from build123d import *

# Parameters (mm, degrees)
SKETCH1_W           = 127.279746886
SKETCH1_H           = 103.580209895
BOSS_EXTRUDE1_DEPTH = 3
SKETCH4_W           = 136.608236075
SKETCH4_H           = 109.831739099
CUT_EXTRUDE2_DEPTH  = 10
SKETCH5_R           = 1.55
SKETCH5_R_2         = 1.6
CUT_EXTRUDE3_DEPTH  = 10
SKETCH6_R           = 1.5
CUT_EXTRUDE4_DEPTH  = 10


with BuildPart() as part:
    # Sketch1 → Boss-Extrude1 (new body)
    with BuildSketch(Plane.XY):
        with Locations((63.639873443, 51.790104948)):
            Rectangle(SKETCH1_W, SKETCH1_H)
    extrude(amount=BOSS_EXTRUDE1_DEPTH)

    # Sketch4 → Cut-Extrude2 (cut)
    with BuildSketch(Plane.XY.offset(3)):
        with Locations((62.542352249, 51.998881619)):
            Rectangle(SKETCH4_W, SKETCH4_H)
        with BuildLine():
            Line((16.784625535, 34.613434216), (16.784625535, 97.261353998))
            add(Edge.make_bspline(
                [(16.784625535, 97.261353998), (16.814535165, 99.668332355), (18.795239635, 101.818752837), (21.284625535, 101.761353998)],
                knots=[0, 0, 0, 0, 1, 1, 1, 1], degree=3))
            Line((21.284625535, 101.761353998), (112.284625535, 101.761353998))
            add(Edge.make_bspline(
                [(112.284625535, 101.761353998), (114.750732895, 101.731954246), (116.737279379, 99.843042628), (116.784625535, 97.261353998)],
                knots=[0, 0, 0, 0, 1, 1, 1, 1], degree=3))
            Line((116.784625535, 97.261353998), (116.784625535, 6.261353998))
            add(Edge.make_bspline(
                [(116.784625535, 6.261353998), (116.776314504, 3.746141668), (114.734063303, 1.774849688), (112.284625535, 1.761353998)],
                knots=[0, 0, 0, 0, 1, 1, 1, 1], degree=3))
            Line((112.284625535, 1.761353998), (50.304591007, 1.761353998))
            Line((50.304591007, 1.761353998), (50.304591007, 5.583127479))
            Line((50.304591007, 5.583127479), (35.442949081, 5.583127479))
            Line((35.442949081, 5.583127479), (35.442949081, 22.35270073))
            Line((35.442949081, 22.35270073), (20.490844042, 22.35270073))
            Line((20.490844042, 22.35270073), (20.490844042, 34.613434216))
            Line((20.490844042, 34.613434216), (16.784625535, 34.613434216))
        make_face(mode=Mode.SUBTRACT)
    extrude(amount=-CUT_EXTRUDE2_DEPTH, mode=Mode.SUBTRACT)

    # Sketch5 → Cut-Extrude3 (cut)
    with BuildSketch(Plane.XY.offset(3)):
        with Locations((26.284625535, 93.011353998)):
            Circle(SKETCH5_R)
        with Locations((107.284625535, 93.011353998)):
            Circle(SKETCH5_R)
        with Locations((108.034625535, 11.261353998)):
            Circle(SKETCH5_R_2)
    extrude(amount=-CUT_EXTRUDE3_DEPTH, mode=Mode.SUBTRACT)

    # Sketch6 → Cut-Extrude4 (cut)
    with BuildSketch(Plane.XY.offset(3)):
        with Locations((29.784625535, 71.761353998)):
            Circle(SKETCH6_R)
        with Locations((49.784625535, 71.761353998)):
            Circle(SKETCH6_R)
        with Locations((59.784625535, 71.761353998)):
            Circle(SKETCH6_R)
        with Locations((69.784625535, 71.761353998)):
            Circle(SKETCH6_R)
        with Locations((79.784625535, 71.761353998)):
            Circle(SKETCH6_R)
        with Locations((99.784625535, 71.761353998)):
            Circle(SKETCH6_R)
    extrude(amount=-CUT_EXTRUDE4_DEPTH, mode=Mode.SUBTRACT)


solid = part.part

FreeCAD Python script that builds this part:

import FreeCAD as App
import Part
import Sketcher

V = App.Vector
Q = App.Units.Quantity


def add_polygon(sketch, points):
    """Adds a closed chain of lines whose ends are joined by coincident constraints."""
    first, n = sketch.GeometryCount, len(points)
    for a, b in zip(points, points[1:] + points[:1]):
        sketch.addGeometry(Part.LineSegment(App.Vector(*a, 0), App.Vector(*b, 0)), False)
    for i in range(n):
        sketch.addConstraint(Sketcher.Constraint("Coincident", first + i, 2, first + (i + 1) % n, 1))

doc = App.newDocument("Part")
body = doc.addObject("PartDesign::Body", "Body")

sketch1 = body.newObject("Sketcher::SketchObject", "Sketch")
sketch1.AttachmentSupport = (doc.getObject("XY_Plane"), [""])
sketch1.MapMode = "FlatFace"
add_polygon(sketch1, [(0, 103.58021), (0, 0), (127.279747, 0), (127.279747, 103.58021)])
sketch1.addConstraint(Sketcher.Constraint("Vertical", 0))
sketch1.addConstraint(Sketcher.Constraint("Horizontal", 1))
sketch1.addConstraint(Sketcher.Constraint("Vertical", 2))
sketch1.addConstraint(Sketcher.Constraint("Horizontal", 3))
sketch1.addConstraint(Sketcher.Constraint("Coincident", 0, 2, -1, 1))
sketch1.addConstraint(Sketcher.Constraint("DistanceY", 0, 2, 0, 1, Q("103.58021 mm")))
sketch1.addConstraint(Sketcher.Constraint("DistanceX", 1, 1, 1, 2, Q("127.279747 mm")))
pad1 = body.newObject("PartDesign::Pad", "Pad")
pad1.Profile = sketch1
pad1.Length = 3

sketch2 = body.newObject("Sketcher::SketchObject", "Sketch001")
sketch2.AttachmentSupport = (doc.getObject("XY_Plane"), [""])
sketch2.MapMode = "FlatFace"
sketch2.AttachmentOffset = App.Placement(V(0, 0, 3), App.Rotation())
add_polygon(sketch2, [(-5.761766, 106.914751), (-5.761766, -2.916988), (130.84647, -2.916988), (130.84647, 106.914751)])
sketch2.addGeometry(Part.LineSegment(V(20.490844, 34.613434, 0), V(16.784626, 34.613434, 0)), False)
sketch2.addGeometry(Part.LineSegment(V(16.784626, 34.613434, 0), V(16.784626, 97.261354, 0)), False)
sketch2.addGeometry(Part.BSplineCurve([V(16.784626, 97.261354, 0), V(16.814535, 99.668332, 0), V(18.79524, 101.818753, 0), V(21.284626, 101.761354, 0)], [4, 4], [0, 1], False, 3, [1, 1, 1, 1], False), False)
sketch2.addGeometry(Part.LineSegment(V(21.284626, 101.761354, 0), V(112.284626, 101.761354, 0)), False)
sketch2.addGeometry(Part.BSplineCurve([V(112.284626, 101.761354, 0), V(114.750733, 101.731954, 0), V(116.737279, 99.843043, 0), V(116.784626, 97.261354, 0)], [4, 4], [0, 1], False, 3, [1, 1, 1, 1], False), False)
sketch2.addGeometry(Part.LineSegment(V(116.784626, 97.261354, 0), V(116.784626, 6.261354, 0)), False)
sketch2.addGeometry(Part.BSplineCurve([V(116.784626, 6.261354, 0), V(116.776315, 3.746142, 0), V(114.734063, 1.77485, 0), V(112.284626, 1.761354, 0)], [4, 4], [0, 1], False, 3, [1, 1, 1, 1], False), False)
sketch2.addGeometry(Part.LineSegment(V(112.284626, 1.761354, 0), V(50.304591, 1.761354, 0)), False)
sketch2.addGeometry(Part.LineSegment(V(50.304591, 1.761354, 0), V(50.304591, 5.583127, 0)), False)
sketch2.addGeometry(Part.LineSegment(V(50.304591, 5.583127, 0), V(35.442949, 5.583127, 0)), False)
sketch2.addGeometry(Part.LineSegment(V(35.442949, 5.583127, 0), V(35.442949, 22.352701, 0)), False)
sketch2.addGeometry(Part.LineSegment(V(35.442949, 22.352701, 0), V(20.490844, 22.352701, 0)), False)
sketch2.addGeometry(Part.LineSegment(V(20.490844, 22.352701, 0), V(20.490844, 34.613434, 0)), False)
sketch2.addConstraint(Sketcher.Constraint("Block", 6))
sketch2.addConstraint(Sketcher.Constraint("Block", 8))
sketch2.addConstraint(Sketcher.Constraint("Block", 10))
sketch2.addConstraint(Sketcher.Constraint("Coincident", 4, 2, 5, 1))
sketch2.addConstraint(Sketcher.Constraint("Coincident", 5, 2, 6, 1))
sketch2.addConstraint(Sketcher.Constraint("Coincident", 6, 2, 7, 1))
sketch2.addConstraint(Sketcher.Constraint("Coincident", 7, 2, 8, 1))
sketch2.addConstraint(Sketcher.Constraint("Coincident", 8, 2, 9, 1))
sketch2.addConstraint(Sketcher.Constraint("Coincident", 9, 2, 10, 1))
sketch2.addConstraint(Sketcher.Constraint("Coincident", 10, 2, 11, 1))
sketch2.addConstraint(Sketcher.Constraint("Coincident", 11, 2, 12, 1))
sketch2.addConstraint(Sketcher.Constraint("Coincident", 12, 2, 13, 1))
sketch2.addConstraint(Sketcher.Constraint("Coincident", 13, 2, 14, 1))
sketch2.addConstraint(Sketcher.Constraint("Coincident", 14, 2, 15, 1))
sketch2.addConstraint(Sketcher.Constraint("Coincident", 15, 2, 16, 1))
sketch2.addConstraint(Sketcher.Constraint("Coincident", 16, 2, 4, 1))
sketch2.addConstraint(Sketcher.Constraint("Vertical", 0))
sketch2.addConstraint(Sketcher.Constraint("Horizontal", 1))
sketch2.addConstraint(Sketcher.Constraint("Vertical", 2))
sketch2.addConstraint(Sketcher.Constraint("Horizontal", 3))
sketch2.addConstraint(Sketcher.Constraint("Horizontal", 4))
sketch2.addConstraint(Sketcher.Constraint("Vertical", 5))
sketch2.addConstraint(Sketcher.Constraint("Horizontal", 11))
sketch2.addConstraint(Sketcher.Constraint("Vertical", 12))
sketch2.addConstraint(Sketcher.Constraint("Horizontal", 13))
sketch2.addConstraint(Sketcher.Constraint("Vertical", 14))
sketch2.addConstraint(Sketcher.Constraint("Horizontal", 15))
sketch2.addConstraint(Sketcher.Constraint("Vertical", 16))
sketch2.addConstraint(Sketcher.Constraint("DistanceX", 4, 2, 4, 1, Q("3.706219 mm")))
sketch2.addConstraint(Sketcher.Constraint("DistanceX", 13, 2, 13, 1, Q("14.861642 mm")))
sketch2.addConstraint(Sketcher.Constraint("DistanceY", 0, 2, 0, 1, Q("109.831739 mm")))
sketch2.addConstraint(Sketcher.Constraint("DistanceY", 5, 1, 5, 2, Q("62.64792 mm")))
sketch2.addConstraint(Sketcher.Constraint("DistanceY", -1, 1, 14, 2, Q("22.352701 mm")))
sketch2.addConstraint(Sketcher.Constraint("DistanceX", 1, 1, 1, 2, Q("136.608236 mm")))
sketch2.addConstraint(Sketcher.Constraint("DistanceX", 11, 2, 11, 1, Q("61.980035 mm")))
sketch2.addConstraint(Sketcher.Constraint("DistanceY", 12, 1, 12, 2, Q("3.821773 mm")))
sketch2.addConstraint(Sketcher.Constraint("DistanceX", -1, 1, 1, 2, Q("130.84647 mm")))
sketch2.addConstraint(Sketcher.Constraint("DistanceY", -1, 1, 2, 2, Q("106.914751 mm")))
pocket1 = body.newObject("PartDesign::Pocket", "Pocket")
pocket1.Profile = sketch2
pocket1.Length = 10

sketch3 = body.newObject("Sketcher::SketchObject", "Sketch002")
sketch3.AttachmentSupport = (doc.getObject("XY_Plane"), [""])
sketch3.MapMode = "FlatFace"
sketch3.AttachmentOffset = App.Placement(V(0, 0, 3), App.Rotation())
sketch3.addGeometry(Part.Circle(V(26.284626, 93.011354, 0), V(0, 0, 1), 1.55), False)
sketch3.addGeometry(Part.Circle(V(107.284626, 93.011354, 0), V(0, 0, 1), 1.55), False)
sketch3.addGeometry(Part.Circle(V(108.034626, 11.261354, 0), V(0, 0, 1), 1.6), False)
sketch3.addConstraint(Sketcher.Constraint("Equal", 0, 1))
sketch3.addConstraint(Sketcher.Constraint("Horizontal", 0, 3, 1, 3))
sketch3.addConstraint(Sketcher.Constraint("Diameter", 0, Q("3.1 mm")))
sketch3.addConstraint(Sketcher.Constraint("Diameter", 2, Q("3.2 mm")))
sketch3.addConstraint(Sketcher.Constraint("DistanceX", 0, 3, 1, 3, Q("81 mm")))
sketch3.addConstraint(Sketcher.Constraint("DistanceX", 1, 3, 2, 3, Q("0.75 mm")))
sketch3.addConstraint(Sketcher.Constraint("DistanceY", 2, 3, 1, 3, Q("81.75 mm")))
sketch3.addConstraint(Sketcher.Constraint("DistanceX", -1, 1, 0, 3, Q("26.284626 mm")))
sketch3.addConstraint(Sketcher.Constraint("DistanceY", -1, 1, 0, 3, Q("93.011354 mm")))
pocket2 = body.newObject("PartDesign::Pocket", "Pocket001")
pocket2.Profile = sketch3
pocket2.Length = 10

sketch4 = body.newObject("Sketcher::SketchObject", "Sketch003")
sketch4.AttachmentSupport = (doc.getObject("XY_Plane"), [""])
sketch4.MapMode = "FlatFace"
sketch4.AttachmentOffset = App.Placement(V(0, 0, 3), App.Rotation())
sketch4.addGeometry(Part.Circle(V(29.784626, 71.761354, 0), V(0, 0, 1), 1.5), False)
sketch4.addGeometry(Part.Circle(V(49.784626, 71.761354, 0), V(0, 0, 1), 1.5), False)
sketch4.addGeometry(Part.Circle(V(59.784626, 71.761354, 0), V(0, 0, 1), 1.5), False)
sketch4.addGeometry(Part.Circle(V(69.784626, 71.761354, 0), V(0, 0, 1), 1.5), False)
sketch4.addGeometry(Part.Circle(V(79.784626, 71.761354, 0), V(0, 0, 1), 1.5), False)
sketch4.addGeometry(Part.Circle(V(99.784626, 71.761354, 0), V(0, 0, 1), 1.5), False)
sketch4.addConstraint(Sketcher.Constraint("Equal", 0, 1))
sketch4.addConstraint(Sketcher.Constraint("Equal", 1, 2))
sketch4.addConstraint(Sketcher.Constraint("Equal", 2, 3))
sketch4.addConstraint(Sketcher.Constraint("Equal", 3, 4))
sketch4.addConstraint(Sketcher.Constraint("Equal", 4, 5))
sketch4.addConstraint(Sketcher.Constraint("Horizontal", 0, 3, 1, 3))
sketch4.addConstraint(Sketcher.Constraint("Horizontal", 1, 3, 2, 3))
sketch4.addConstraint(Sketcher.Constraint("Horizontal", 2, 3, 3, 3))
sketch4.addConstraint(Sketcher.Constraint("Horizontal", 3, 3, 4, 3))
sketch4.addConstraint(Sketcher.Constraint("Horizontal", 4, 3, 5, 3))
sketch4.addConstraint(Sketcher.Constraint("Diameter", 0, Q("3 mm")))
sketch4.addConstraint(Sketcher.Constraint("DistanceX", 0, 3, 1, 3, Q("20 mm")))
sketch4.addConstraint(Sketcher.Constraint("DistanceX", 1, 3, 2, 3, Q("10 mm")))
sketch4.addConstraint(Sketcher.Constraint("DistanceX", 2, 3, 3, 3, Q("10 mm")))
sketch4.addConstraint(Sketcher.Constraint("DistanceX", 3, 3, 4, 3, Q("10 mm")))
sketch4.addConstraint(Sketcher.Constraint("DistanceX", 4, 3, 5, 3, Q("20 mm")))
sketch4.addConstraint(Sketcher.Constraint("DistanceX", -1, 1, 0, 3, Q("29.784626 mm")))
sketch4.addConstraint(Sketcher.Constraint("DistanceY", -1, 1, 0, 3, Q("71.761354 mm")))
pocket3 = body.newObject("PartDesign::Pocket", "Pocket002")
pocket3.Profile = sketch4
pocket3.Length = 10

doc.recompute()
